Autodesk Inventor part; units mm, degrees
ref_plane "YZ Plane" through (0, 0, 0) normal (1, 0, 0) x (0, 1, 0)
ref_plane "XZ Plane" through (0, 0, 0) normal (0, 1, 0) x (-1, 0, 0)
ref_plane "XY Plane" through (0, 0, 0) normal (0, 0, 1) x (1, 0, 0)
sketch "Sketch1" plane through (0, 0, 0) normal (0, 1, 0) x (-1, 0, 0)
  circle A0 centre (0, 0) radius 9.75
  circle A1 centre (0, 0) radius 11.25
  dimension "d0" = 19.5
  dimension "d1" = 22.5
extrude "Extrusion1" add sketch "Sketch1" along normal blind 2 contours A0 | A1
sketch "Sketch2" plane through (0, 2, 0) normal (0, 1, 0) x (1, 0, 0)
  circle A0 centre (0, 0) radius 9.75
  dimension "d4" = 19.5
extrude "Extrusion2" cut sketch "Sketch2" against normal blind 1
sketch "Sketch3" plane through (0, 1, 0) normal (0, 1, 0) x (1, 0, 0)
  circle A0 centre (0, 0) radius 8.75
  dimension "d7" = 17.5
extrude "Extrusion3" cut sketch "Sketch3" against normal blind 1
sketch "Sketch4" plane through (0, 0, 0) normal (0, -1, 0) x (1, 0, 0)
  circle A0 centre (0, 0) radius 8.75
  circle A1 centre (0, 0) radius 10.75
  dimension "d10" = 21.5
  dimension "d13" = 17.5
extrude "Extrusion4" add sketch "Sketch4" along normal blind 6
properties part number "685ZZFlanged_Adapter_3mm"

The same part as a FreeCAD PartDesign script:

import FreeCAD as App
import Part
import Sketcher

doc = App.newDocument("Part")
params = doc.addObject("Spreadsheet::Sheet", "Params")
for row, (alias, value) in enumerate([
    ("sketch1_diameter", "22.5 mm"),
    ("pad1_length", "2 mm"),
    ("sketch2_diameter", "19.5 mm"),
    ("pocket1_length", "1 mm"),
    ("sketch3_diameter", "17.5 mm"),
    ("pocket2_length", "1 mm"),
    ("sketch4_diameter", "21.5 mm"),
    ("sketch4_diameter2", "17.5 mm"),
    ("pad2_length", "6 mm"),
], start=1):
    params.set(f"A{row}", alias)
    params.set(f"B{row}", "=" + value)
    params.setAlias(f"B{row}", alias)

body = doc.addObject("PartDesign::Body", "Body")

# Sketch on XZ plane
sketch1 = body.newObject("Sketcher::SketchObject", "Sketch")
sketch1.AttachmentSupport = (doc.getObject("XZ_Plane"), [""])
sketch1.MapMode = "FlatFace"
sketch1.addGeometry(Part.Circle(App.Vector(0, 0, 0), App.Vector(0, 0, 1), 11), False)
sketch1.addConstraint(Sketcher.Constraint("Coincident", 0, 3, -1, 1))
sketch1.addConstraint(Sketcher.Constraint("Diameter", 0, 22.5))
sketch1.setExpression("Constraints[1]", "Params.sketch1_diameter")
pad1 = body.newObject("PartDesign::Pad", "Pad")
pad1.Profile = sketch1
pad1.setExpression("Length", "Params.pad1_length")
pad1.Reversed = True

# Sketch on XZ plane
sketch2 = body.newObject("Sketcher::SketchObject", "Sketch001")
sketch2.AttachmentSupport = (doc.getObject("XZ_Plane"), [""])
sketch2.MapMode = "FlatFace"
sketch2.AttachmentOffset = App.Placement(App.Vector(0, 0, -2), App.Rotation())
sketch2.addGeometry(Part.Circle(App.Vector(0, 0, 0), App.Vector(0, 0, 1), 10), False)
sketch2.addConstraint(Sketcher.Constraint("Coincident", 0, 3, -1, 1))
sketch2.addConstraint(Sketcher.Constraint("Diameter", 0, 19.5))
sketch2.setExpression("Constraints[1]", "Params.sketch2_diameter")
pocket1 = body.newObject("PartDesign::Pocket", "Pocket")
pocket1.Profile = sketch2
pocket1.setExpression("Length", "Params.pocket1_length")
pocket1.Reversed = True

# Sketch on XZ plane
sketch3 = body.newObject("Sketcher::SketchObject", "Sketch002")
sketch3.AttachmentSupport = (doc.getObject("XZ_Plane"), [""])
sketch3.MapMode = "FlatFace"
sketch3.AttachmentOffset = App.Placement(App.Vector(0, 0, -1), App.Rotation())
sketch3.addGeometry(Part.Circle(App.Vector(0, 0, 0), App.Vector(0, 0, 1), 9), False)
sketch3.addConstraint(Sketcher.Constraint("Coincident", 0, 3, -1, 1))
sketch3.addConstraint(Sketcher.Constraint("Diameter", 0, 17.5))
sketch3.setExpression("Constraints[1]", "Params.sketch3_diameter")
pocket2 = body.newObject("PartDesign::Pocket", "Pocket001")
pocket2.Profile = sketch3
pocket2.setExpression("Length", "Params.pocket2_length")
pocket2.Reversed = True

# Sketch on XZ plane
sketch4 = body.newObject("Sketcher::SketchObject", "Sketch003")
sketch4.AttachmentSupport = (doc.getObject("XZ_Plane"), [""])
sketch4.MapMode = "FlatFace"
sketch4.addGeometry(Part.Circle(App.Vector(0, 0, 0), App.Vector(0, 0, 1), 11), False)
sketch4.addGeometry(Part.Circle(App.Vector(0, 0, 0), App.Vector(0, 0, 1), 9), False)
sketch4.addConstraint(Sketcher.Constraint("Coincident", 0, 3, -1, 1))
sketch4.addConstraint(Sketcher.Constraint("Coincident", 1, 3, -1, 1))
sketch4.addConstraint(Sketcher.Constraint("Diameter", 0, 21.5))
sketch4.addConstraint(Sketcher.Constraint("Diameter", 1, 17.5))
sketch4.setExpression("Constraints[2]", "Params.sketch4_diameter")
sketch4.setExpression("Constraints[3]", "Params.sketch4_diameter2")
pad2 = body.newObject("PartDesign::Pad", "Pad001")
pad2.Profile = sketch4
pad2.setExpression("Length", "Params.pad2_length")

doc.recompute()
